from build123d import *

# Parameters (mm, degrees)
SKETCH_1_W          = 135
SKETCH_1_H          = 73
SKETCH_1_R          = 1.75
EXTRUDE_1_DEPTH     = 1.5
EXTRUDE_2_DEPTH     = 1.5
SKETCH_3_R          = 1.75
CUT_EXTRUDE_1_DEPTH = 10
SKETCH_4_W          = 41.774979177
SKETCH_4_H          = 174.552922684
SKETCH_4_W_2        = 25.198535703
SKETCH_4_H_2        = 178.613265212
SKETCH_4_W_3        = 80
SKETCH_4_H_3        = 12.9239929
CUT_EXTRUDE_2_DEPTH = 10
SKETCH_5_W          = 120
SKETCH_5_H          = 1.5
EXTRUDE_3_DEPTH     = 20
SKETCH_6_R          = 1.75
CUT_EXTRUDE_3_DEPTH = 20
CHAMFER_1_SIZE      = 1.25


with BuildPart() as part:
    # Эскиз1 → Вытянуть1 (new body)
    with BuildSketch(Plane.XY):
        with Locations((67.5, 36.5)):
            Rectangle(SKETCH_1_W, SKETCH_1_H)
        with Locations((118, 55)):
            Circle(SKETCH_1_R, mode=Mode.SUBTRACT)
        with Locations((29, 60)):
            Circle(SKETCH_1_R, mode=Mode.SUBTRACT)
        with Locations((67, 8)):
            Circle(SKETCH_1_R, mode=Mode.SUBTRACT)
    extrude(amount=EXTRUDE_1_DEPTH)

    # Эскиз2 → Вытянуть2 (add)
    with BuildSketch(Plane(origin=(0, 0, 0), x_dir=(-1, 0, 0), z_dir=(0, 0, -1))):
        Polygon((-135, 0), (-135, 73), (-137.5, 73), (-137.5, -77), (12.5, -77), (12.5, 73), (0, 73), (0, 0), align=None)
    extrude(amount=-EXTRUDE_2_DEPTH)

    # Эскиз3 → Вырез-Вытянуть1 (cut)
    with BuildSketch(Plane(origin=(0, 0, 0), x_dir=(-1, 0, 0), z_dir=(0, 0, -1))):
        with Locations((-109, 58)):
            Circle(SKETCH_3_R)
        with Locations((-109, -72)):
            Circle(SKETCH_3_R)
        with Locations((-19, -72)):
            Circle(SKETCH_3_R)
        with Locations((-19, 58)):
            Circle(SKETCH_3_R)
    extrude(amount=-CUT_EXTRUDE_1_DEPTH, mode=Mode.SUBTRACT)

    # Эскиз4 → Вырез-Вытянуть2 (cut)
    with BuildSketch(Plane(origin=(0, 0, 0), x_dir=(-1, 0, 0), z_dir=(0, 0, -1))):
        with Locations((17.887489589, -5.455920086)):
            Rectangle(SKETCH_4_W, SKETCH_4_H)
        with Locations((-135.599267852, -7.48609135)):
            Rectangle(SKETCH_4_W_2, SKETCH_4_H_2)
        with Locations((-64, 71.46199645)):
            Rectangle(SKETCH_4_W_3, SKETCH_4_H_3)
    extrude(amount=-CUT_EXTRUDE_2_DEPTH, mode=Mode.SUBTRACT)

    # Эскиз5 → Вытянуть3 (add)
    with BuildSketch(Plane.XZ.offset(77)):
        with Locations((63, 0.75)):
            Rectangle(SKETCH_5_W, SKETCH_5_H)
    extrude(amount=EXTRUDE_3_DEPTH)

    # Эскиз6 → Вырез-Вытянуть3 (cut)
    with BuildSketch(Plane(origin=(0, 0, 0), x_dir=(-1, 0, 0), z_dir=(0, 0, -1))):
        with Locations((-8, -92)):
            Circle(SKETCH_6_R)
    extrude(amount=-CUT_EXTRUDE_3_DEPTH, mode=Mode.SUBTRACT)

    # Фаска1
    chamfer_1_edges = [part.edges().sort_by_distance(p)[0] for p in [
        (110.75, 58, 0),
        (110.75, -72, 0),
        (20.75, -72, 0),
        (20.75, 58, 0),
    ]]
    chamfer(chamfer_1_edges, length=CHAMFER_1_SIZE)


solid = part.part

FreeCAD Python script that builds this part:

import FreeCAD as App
import Part
import Sketcher
Q = App.Units.Quantity


def edges_at(feature, points):
    """Names of the edges that pass closest to the given points."""
    edges = feature.Shape.Edges
    near = lambda p: min(range(len(edges)), key=lambda i: edges[i].distToShape(Part.Vertex(*p))[0])
    return sorted({f"Edge{near(p) + 1}" for p in points})


def add_polygon(sketch, points):
    """Adds a closed chain of lines whose ends are joined by coincident constraints."""
    first, n = sketch.GeometryCount, len(points)
    for a, b in zip(points, points[1:] + points[:1]):
        sketch.addGeometry(Part.LineSegment(App.Vector(*a, 0), App.Vector(*b, 0)), False)
    for i in range(n):
        sketch.addConstraint(Sketcher.Constraint("Coincident", first + i, 2, first + (i + 1) % n, 1))

doc = App.newDocument("Part")
body = doc.addObject("PartDesign::Body", "Body")

sketch1 = body.newObject("Sketcher::SketchObject", "Sketch")
sketch1.AttachmentSupport = (doc.getObject("XY_Plane"), [""])
sketch1.MapMode = "FlatFace"
add_polygon(sketch1, [(0, 73), (0, 0), (135, 0), (135, 73)])
sketch1.addGeometry(Part.Circle(App.Vector(67, 8, 0), App.Vector(0, 0, 1), 1.8), False)
sketch1.addGeometry(Part.Circle(App.Vector(29, 60, 0), App.Vector(0, 0, 1), 1.8), False)
sketch1.addGeometry(Part.Circle(App.Vector(118, 55, 0), App.Vector(0, 0, 1), 1.8), False)
sketch1.addConstraint([
    Sketcher.Constraint("Vertical", 0),
    Sketcher.Constraint("Horizontal", 1),
    Sketcher.Constraint("Vertical", 2),
    Sketcher.Constraint("Horizontal", 3),
    Sketcher.Constraint("Coincident", 0, 2, -1, 1),
    Sketcher.Constraint("Equal", 4, 5),
    Sketcher.Constraint("Equal", 5, 6),
    Sketcher.Constraint("Diameter", 4, Q("3.5 mm")),
    Sketcher.Constraint("DistanceX", 1, 1, 1, 2, Q("135 mm")),
    Sketcher.Constraint("DistanceY", 0, 2, 0, 1, Q("73 mm")),
    Sketcher.Constraint("DistanceX", -1, 1, 4, 3, Q("67 mm")),
    Sketcher.Constraint("DistanceY", -1, 1, 4, 3, Q("8 mm")),
    Sketcher.Constraint("DistanceX", -1, 1, 5, 3, Q("29 mm")),
    Sketcher.Constraint("DistanceY", -1, 1, 5, 3, Q("60 mm")),
    Sketcher.Constraint("DistanceX", -1, 1, 6, 3, Q("118 mm")),
    Sketcher.Constraint("DistanceY", -1, 1, 6, 3, Q("55 mm")),
])
pad1 = body.newObject("PartDesign::Pad", "Pad")
pad1.Profile = sketch1
pad1.Length = 1.5

sketch2 = body.newObject("Sketcher::SketchObject", "Sketch001")
sketch2.AttachmentSupport = (doc.getObject("XY_Plane"), [""])
sketch2.MapMode = "FlatFace"
add_polygon(sketch2, [(135, 0), (135, 73), (137.5, 73), (137.5, -77), (-12.5, -77), (-12.5, 73), (0, 73), (0, 0)])
sketch2.addConstraint([
    Sketcher.Constraint("Vertical", 0),
    Sketcher.Constraint("Horizontal", 1),
    Sketcher.Constraint("Vertical", 2),
    Sketcher.Constraint("Horizontal", 3),
    Sketcher.Constraint("Vertical", 4),
    Sketcher.Constraint("Horizontal", 5),
    Sketcher.Constraint("Vertical", 6),
    Sketcher.Constraint("Horizontal", 7),
    Sketcher.Constraint("Coincident", 6, 2, -1, 1),
    Sketcher.Constraint("Horizontal", 1, 2, 4, 2),
    Sketcher.Constraint("Equal", 3, 2),
    Sketcher.Constraint("DistanceX", 3, 2, 3, 1, Q("150 mm")),
    Sketcher.Constraint("DistanceX", 7, 1, 7, 2, Q("135 mm")),
    Sketcher.Constraint("DistanceY", 0, 1, 0, 2, Q("73 mm")),
    Sketcher.Constraint("DistanceX", 1, 1, 1, 2, Q("2.5 mm")),
])
pad2 = body.newObject("PartDesign::Pad", "Pad001")
pad2.Profile = sketch2
pad2.Length = 1.5

sketch3 = body.newObject("Sketcher::SketchObject", "Sketch002")
sketch3.AttachmentSupport = (doc.getObject("XY_Plane"), [""])
sketch3.MapMode = "FlatFace"
sketch3.addGeometry([
    Part.Circle(App.Vector(109, 58, 0), App.Vector(0, 0, 1), 1.8),
    Part.Circle(App.Vector(109, -72, 0), App.Vector(0, 0, 1), 1.8),
    Part.Circle(App.Vector(19, -72, 0), App.Vector(0, 0, 1), 1.8),
    Part.Circle(App.Vector(19, 58, 0), App.Vector(0, 0, 1), 1.8),
], False)
sketch3.addConstraint([
    Sketcher.Constraint("Equal", 0, 1),
    Sketcher.Constraint("Equal", 1, 2),
    Sketcher.Constraint("Equal", 2, 3),
    Sketcher.Constraint("Horizontal", 1, 3, 2, 3),
    Sketcher.Constraint("Horizontal", 0, 3, 3, 3),
    Sketcher.Constraint("Vertical", 0, 3, 1, 3),
    Sketcher.Constraint("Vertical", 2, 3, 3, 3),
    Sketcher.Constraint("Diameter", 0, Q("3.5 mm")),
    Sketcher.Constraint("DistanceX", -1, 1, 0, 3, Q("109 mm")),
    Sketcher.Constraint("DistanceY", -1, 1, 0, 3, Q("58 mm")),
    Sketcher.Constraint("DistanceY", 1, 3, -1, 1, Q("72 mm")),
    Sketcher.Constraint("DistanceX", -1, 1, 2, 3, Q("19 mm")),
])
pocket1 = body.newObject("PartDesign::Pocket", "Pocket")
pocket1.Profile = sketch3
pocket1.Length = 10
pocket1.Reversed = True

sketch4 = body.newObject("Sketcher::SketchObject", "Sketch003")
sketch4.AttachmentSupport = (doc.getObject("XY_Plane"), [""])
sketch4.MapMode = "FlatFace"
add_polygon(sketch4, [(3, 82), (3, -93), (-39, -93), (-39, 82)])
add_polygon(sketch4, [(148, 82), (148, -97), (123, -97), (123, 82)])
add_polygon(sketch4, [(104, 78), (104, 65), (24, 65), (24, 78)])
sketch4.addConstraint([
    Sketcher.Constraint("Vertical", 0),
    Sketcher.Constraint("Horizontal", 1),
    Sketcher.Constraint("Vertical", 2),
    Sketcher.Constraint("Horizontal", 3),
    Sketcher.Constraint("Vertical", 4),
    Sketcher.Constraint("Horizontal", 5),
    Sketcher.Constraint("Vertical", 6),
    Sketcher.Constraint("Horizontal", 7),
    Sketcher.Constraint("Vertical", 8),
    Sketcher.Constraint("Horizontal", 9),
    Sketcher.Constraint("Vertical", 10),
    Sketcher.Constraint("Horizontal", 11),
    Sketcher.Constraint("Horizontal", 3, 2, 6, 2),
    Sketcher.Constraint("DistanceX", 9, 2, 9, 1, Q("80 mm")),
    Sketcher.Constraint("DistanceX", -1, 1, 0, 2, Q("3 mm")),
    Sketcher.Constraint("DistanceX", -1, 1, 5, 2, Q("123 mm")),
    Sketcher.Constraint("DistanceX", -1, 1, 8, 2, Q("104 mm")),
    Sketcher.Constraint("DistanceY", -1, 1, 8, 2, Q("65 mm")),
    Sketcher.Constraint("DistanceX", 1, 2, 1, 1, Q("41.774979 mm")),
    Sketcher.Constraint("DistanceX", 5, 2, 5, 1, Q("25.198536 mm")),
    Sketcher.Constraint("DistanceY", 0, 2, 0, 1, Q("174.552923 mm")),
    Sketcher.Constraint("DistanceY", 4, 2, 4, 1, Q("178.613265 mm")),
    Sketcher.Constraint("DistanceY", 8, 2, 8, 1, Q("12.923993 mm")),
    Sketcher.Constraint("DistanceY", 0, 2, -1, 1, Q("92.732381 mm")),
])
pocket2 = body.newObject("PartDesign::Pocket", "Pocket001")
pocket2.Profile = sketch4
pocket2.Length = 10
pocket2.Reversed = True

sketch5 = body.newObject("Sketcher::SketchObject", "Sketch004")
sketch5.AttachmentSupport = (doc.getObject("XZ_Plane"), [""])
sketch5.MapMode = "FlatFace"
sketch5.AttachmentOffset = App.Placement(App.Vector(0, 0, 77), App.Rotation())
add_polygon(sketch5, [(3, 1.5), (3, 0), (123, 0), (123, 1.5)])
sketch5.addConstraint([
    Sketcher.Constraint("Vertical", 0),
    Sketcher.Constraint("Horizontal", 1),
    Sketcher.Constraint("Vertical", 2),
    Sketcher.Constraint("Horizontal", 3),
    Sketcher.Constraint("PointOnObject", 0, 2, -1),
    Sketcher.Constraint("DistanceX", 1, 1, 1, 2, Q("120 mm")),
    Sketcher.Constraint("DistanceY", 0, 2, 0, 1, Q("1.5 mm")),
    Sketcher.Constraint("DistanceX", -1, 1, 0, 2, Q("3 mm")),
])
pad3 = body.newObject("PartDesign::Pad", "Pad002")
pad3.Profile = sketch5
pad3.Length = 20

sketch6 = body.newObject("Sketcher::SketchObject", "Sketch005")
sketch6.AttachmentSupport = (doc.getObject("XY_Plane"), [""])
sketch6.MapMode = "FlatFace"
sketch6.addGeometry(Part.Circle(App.Vector(8, -92, 0), App.Vector(0, 0, 1), 1.8), False)
sketch6.addConstraint([
    Sketcher.Constraint("Diameter", 0, Q("3.5 mm")),
    Sketcher.Constraint("DistanceX", -1, 1, 0, 3, Q("8 mm")),
    Sketcher.Constraint("DistanceY", 0, 3, -1, 1, Q("92 mm")),
])
pocket3 = body.newObject("PartDesign::Pocket", "Pocket002")
pocket3.Profile = sketch6
pocket3.Length = 20
pocket3.Reversed = True
doc.recompute()

chamfer = body.newObject("PartDesign::Chamfer", "Chamfer")
chamfer.Base = (pocket3, edges_at(pocket3, [
    (110.75, 58, 0),
    (110.75, -72, 0),
    (20.75, -72, 0),
    (20.75, 58, 0),
]))
chamfer.Size = 1.25

doc.recompute()
